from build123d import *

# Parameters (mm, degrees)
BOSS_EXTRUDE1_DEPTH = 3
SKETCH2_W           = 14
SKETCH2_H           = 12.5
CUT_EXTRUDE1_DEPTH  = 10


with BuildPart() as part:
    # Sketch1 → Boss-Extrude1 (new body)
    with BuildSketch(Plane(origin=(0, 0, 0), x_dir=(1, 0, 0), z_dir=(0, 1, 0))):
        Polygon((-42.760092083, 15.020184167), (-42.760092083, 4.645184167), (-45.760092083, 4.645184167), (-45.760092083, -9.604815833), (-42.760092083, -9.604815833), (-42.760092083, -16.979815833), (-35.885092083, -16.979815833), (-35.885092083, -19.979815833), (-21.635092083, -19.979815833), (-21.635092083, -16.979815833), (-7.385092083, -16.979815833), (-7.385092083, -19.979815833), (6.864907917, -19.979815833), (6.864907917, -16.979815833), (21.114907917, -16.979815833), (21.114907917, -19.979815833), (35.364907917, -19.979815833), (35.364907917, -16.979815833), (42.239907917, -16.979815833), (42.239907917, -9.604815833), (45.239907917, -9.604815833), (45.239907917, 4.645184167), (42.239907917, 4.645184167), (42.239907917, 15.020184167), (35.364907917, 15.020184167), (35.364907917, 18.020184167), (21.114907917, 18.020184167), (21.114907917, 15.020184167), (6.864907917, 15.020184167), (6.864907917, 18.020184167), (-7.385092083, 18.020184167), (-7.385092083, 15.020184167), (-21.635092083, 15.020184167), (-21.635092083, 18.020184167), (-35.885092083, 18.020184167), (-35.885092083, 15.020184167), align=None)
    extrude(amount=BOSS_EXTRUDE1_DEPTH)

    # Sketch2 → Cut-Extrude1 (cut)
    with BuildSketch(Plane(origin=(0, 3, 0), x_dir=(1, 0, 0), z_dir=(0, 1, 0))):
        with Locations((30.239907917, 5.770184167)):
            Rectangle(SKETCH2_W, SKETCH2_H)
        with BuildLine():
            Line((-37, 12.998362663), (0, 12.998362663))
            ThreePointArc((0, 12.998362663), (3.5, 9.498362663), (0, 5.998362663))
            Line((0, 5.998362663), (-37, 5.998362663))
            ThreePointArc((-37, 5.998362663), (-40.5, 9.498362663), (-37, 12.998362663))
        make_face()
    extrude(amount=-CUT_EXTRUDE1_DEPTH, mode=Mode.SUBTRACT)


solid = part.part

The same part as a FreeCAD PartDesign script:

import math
import FreeCAD as App
import Part
import Sketcher
Q = App.Units.Quantity

doc = App.newDocument("Part")
body = doc.addObject("PartDesign::Body", "Body")

# Sketch on XZ plane
sketch1 = body.newObject("Sketcher::SketchObject", "Sketch")
sketch1.AttachmentSupport = (doc.getObject("XZ_Plane"), [""])
sketch1.MapMode = "FlatFace"
sketch1.addGeometry(Part.LineSegment(App.Vector(-42.8, -15, 0), App.Vector(-42.8, -4.6, 0)), False)
sketch1.addGeometry(Part.LineSegment(App.Vector(-42.8, -4.6, 0), App.Vector(-45.8, -4.6, 0)), False)
sketch1.addGeometry(Part.LineSegment(App.Vector(-45.8, -4.6, 0), App.Vector(-45.8, 9.6, 0)), False)
sketch1.addGeometry(Part.LineSegment(App.Vector(-45.8, 9.6, 0), App.Vector(-42.8, 9.6, 0)), False)
sketch1.addGeometry(Part.LineSegment(App.Vector(-42.8, 9.6, 0), App.Vector(-42.8, 17, 0)), False)
sketch1.addGeometry(Part.LineSegment(App.Vector(-42.8, 17, 0), App.Vector(-35.9, 17, 0)), False)
sketch1.addGeometry(Part.LineSegment(App.Vector(-35.9, 17, 0), App.Vector(-35.9, 20, 0)), False)
sketch1.addGeometry(Part.LineSegment(App.Vector(-35.9, 20, 0), App.Vector(-21.6, 20, 0)), False)
sketch1.addGeometry(Part.LineSegment(App.Vector(-21.6, 20, 0), App.Vector(-21.6, 17, 0)), False)
sketch1.addGeometry(Part.LineSegment(App.Vector(-21.6, 17, 0), App.Vector(-7.4, 17, 0)), False)
sketch1.addGeometry(Part.LineSegment(App.Vector(-7.4, 17, 0), App.Vector(-7.4, 20, 0)), False)
sketch1.addGeometry(Part.LineSegment(App.Vector(-7.4, 20, 0), App.Vector(6.9, 20, 0)), False)
sketch1.addGeometry(Part.LineSegment(App.Vector(6.9, 20, 0), App.Vector(6.9, 17, 0)), False)
sketch1.addGeometry(Part.LineSegment(App.Vector(6.9, 17, 0), App.Vector(21.1, 17, 0)), False)
sketch1.addGeometry(Part.LineSegment(App.Vector(21.1, 17, 0), App.Vector(21.1, 20, 0)), False)
sketch1.addGeometry(Part.LineSegment(App.Vector(21.1, 20, 0), App.Vector(35.4, 20, 0)), False)
sketch1.addGeometry(Part.LineSegment(App.Vector(35.4, 20, 0), App.Vector(35.4, 17, 0)), False)
sketch1.addGeometry(Part.LineSegment(App.Vector(35.4, 17, 0), App.Vector(42.2, 17, 0)), False)
sketch1.addGeometry(Part.LineSegment(App.Vector(42.2, 17, 0), App.Vector(42.2, 9.6, 0)), False)
sketch1.addGeometry(Part.LineSegment(App.Vector(42.2, 9.6, 0), App.Vector(45.2, 9.6, 0)), False)
sketch1.addGeometry(Part.LineSegment(App.Vector(45.2, 9.6, 0), App.Vector(45.2, -4.6, 0)), False)
sketch1.addGeometry(Part.LineSegment(App.Vector(45.2, -4.6, 0), App.Vector(42.2, -4.6, 0)), False)
sketch1.addGeometry(Part.LineSegment(App.Vector(42.2, -4.6, 0), App.Vector(42.2, -15, 0)), False)
sketch1.addGeometry(Part.LineSegment(App.Vector(42.2, -15, 0), App.Vector(35.4, -15, 0)), False)
sketch1.addGeometry(Part.LineSegment(App.Vector(35.4, -15, 0), App.Vector(35.4, -18, 0)), False)
sketch1.addGeometry(Part.LineSegment(App.Vector(35.4, -18, 0), App.Vector(21.1, -18, 0)), False)
sketch1.addGeometry(Part.LineSegment(App.Vector(21.1, -18, 0), App.Vector(21.1, -15, 0)), False)
sketch1.addGeometry(Part.LineSegment(App.Vector(21.1, -15, 0), App.Vector(6.9, -15, 0)), False)
sketch1.addGeometry(Part.LineSegment(App.Vector(6.9, -15, 0), App.Vector(6.9, -18, 0)), False)
sketch1.addGeometry(Part.LineSegment(App.Vector(6.9, -18, 0), App.Vector(-7.4, -18, 0)), False)
sketch1.addGeometry(Part.LineSegment(App.Vector(-7.4, -18, 0), App.Vector(-7.4, -15, 0)), False)
sketch1.addGeometry(Part.LineSegment(App.Vector(-7.4, -15, 0), App.Vector(-21.6, -15, 0)), False)
sketch1.addGeometry(Part.LineSegment(App.Vector(-21.6, -15, 0), App.Vector(-21.6, -18, 0)), False)
sketch1.addGeometry(Part.LineSegment(App.Vector(-21.6, -18, 0), App.Vector(-35.9, -18, 0)), False)
sketch1.addGeometry(Part.LineSegment(App.Vector(-35.9, -18, 0), App.Vector(-35.9, -15, 0)), False)
sketch1.addGeometry(Part.LineSegment(App.Vector(-35.9, -15, 0), App.Vector(-42.8, -15, 0)), False)
sketch1.addConstraint(Sketcher.Constraint("Coincident", 0, 2, 1, 1))
sketch1.addConstraint(Sketcher.Constraint("Coincident", 1, 2, 2, 1))
sketch1.addConstraint(Sketcher.Constraint("Coincident", 2, 2, 3, 1))
sketch1.addConstraint(Sketcher.Constraint("Coincident", 3, 2, 4, 1))
sketch1.addConstraint(Sketcher.Constraint("Coincident", 4, 2, 5, 1))
sketch1.addConstraint(Sketcher.Constraint("Coincident", 5, 2, 6, 1))
sketch1.addConstraint(Sketcher.Constraint("Coincident", 6, 2, 7, 1))
sketch1.addConstraint(Sketcher.Constraint("Coincident", 7, 2, 8, 1))
sketch1.addConstraint(Sketcher.Constraint("Coincident", 8, 2, 9, 1))
sketch1.addConstraint(Sketcher.Constraint("Coincident", 9, 2, 10, 1))
sketch1.addConstraint(Sketcher.Constraint("Coincident", 10, 2, 11, 1))
sketch1.addConstraint(Sketcher.Constraint("Coincident", 11, 2, 12, 1))
sketch1.addConstraint(Sketcher.Constraint("Coincident", 12, 2, 13, 1))
sketch1.addConstraint(Sketcher.Constraint("Coincident", 13, 2, 14, 1))
sketch1.addConstraint(Sketcher.Constraint("Coincident", 14, 2, 15, 1))
sketch1.addConstraint(Sketcher.Constraint("Coincident", 15, 2, 16, 1))
sketch1.addConstraint(Sketcher.Constraint("Coincident", 16, 2, 17, 1))
sketch1.addConstraint(Sketcher.Constraint("Coincident", 17, 2, 18, 1))
sketch1.addConstraint(Sketcher.Constraint("Coincident", 18, 2, 19, 1))
sketch1.addConstraint(Sketcher.Constraint("Coincident", 19, 2, 20, 1))
sketch1.addConstraint(Sketcher.Constraint("Coincident", 20, 2, 21, 1))
sketch1.addConstraint(Sketcher.Constraint("Coincident", 21, 2, 22, 1))
sketch1.addConstraint(Sketcher.Constraint("Coincident", 22, 2, 23, 1))
sketch1.addConstraint(Sketcher.Constraint("Coincident", 23, 2, 24, 1))
sketch1.addConstraint(Sketcher.Constraint("Coincident", 24, 2, 25, 1))
sketch1.addConstraint(Sketcher.Constraint("Coincident", 25, 2, 26, 1))
sketch1.addConstraint(Sketcher.Constraint("Coincident", 26, 2, 27, 1))
sketch1.addConstraint(Sketcher.Constraint("Coincident", 27, 2, 28, 1))
sketch1.addConstraint(Sketcher.Constraint("Coincident", 28, 2, 29, 1))
sketch1.addConstraint(Sketcher.Constraint("Coincident", 29, 2, 30, 1))
sketch1.addConstraint(Sketcher.Constraint("Coincident", 30, 2, 31, 1))
sketch1.addConstraint(Sketcher.Constraint("Coincident", 31, 2, 32, 1))
sketch1.addConstraint(Sketcher.Constraint("Coincident", 32, 2, 33, 1))
sketch1.addConstraint(Sketcher.Constraint("Coincident", 33, 2, 34, 1))
sketch1.addConstraint(Sketcher.Constraint("Coincident", 34, 2, 35, 1))
sketch1.addConstraint(Sketcher.Constraint("Coincident", 35, 2, 0, 1))
sketch1.addConstraint(Sketcher.Constraint("Vertical", 0))
sketch1.addConstraint(Sketcher.Constraint("Horizontal", 1))
sketch1.addConstraint(Sketcher.Constraint("Vertical", 2))
sketch1.addConstraint(Sketcher.Constraint("Horizontal", 3))
sketch1.addConstraint(Sketcher.Constraint("Vertical", 4))
sketch1.addConstraint(Sketcher.Constraint("Horizontal", 5))
sketch1.addConstraint(Sketcher.Constraint("Vertical", 6))
sketch1.addConstraint(Sketcher.Constraint("Horizontal", 7))
sketch1.addConstraint(Sketcher.Constraint("Vertical", 8))
sketch1.addConstraint(Sketcher.Constraint("Horizontal", 9))
sketch1.addConstraint(Sketcher.Constraint("Vertical", 10))
sketch1.addConstraint(Sketcher.Constraint("Horizontal", 11))
sketch1.addConstraint(Sketcher.Constraint("Vertical", 12))
sketch1.addConstraint(Sketcher.Constraint("Horizontal", 13))
sketch1.addConstraint(Sketcher.Constraint("Vertical", 14))
sketch1.addConstraint(Sketcher.Constraint("Horizontal", 15))
sketch1.addConstraint(Sketcher.Constraint("Vertical", 16))
sketch1.addConstraint(Sketcher.Constraint("Horizontal", 17))
sketch1.addConstraint(Sketcher.Constraint("Vertical", 18))
sketch1.addConstraint(Sketcher.Constraint("Horizontal", 19))
sketch1.addConstraint(Sketcher.Constraint("Vertical", 20))
sketch1.addConstraint(Sketcher.Constraint("Horizontal", 21))
sketch1.addConstraint(Sketcher.Constraint("Vertical", 22))
sketch1.addConstraint(Sketcher.Constraint("Horizontal", 23))
sketch1.addConstraint(Sketcher.Constraint("Vertical", 24))
sketch1.addConstraint(Sketcher.Constraint("Horizontal", 25))
sketch1.addConstraint(Sketcher.Constraint("Vertical", 26))
sketch1.addConstraint(Sketcher.Constraint("Horizontal", 27))
sketch1.addConstraint(Sketcher.Constraint("Vertical", 28))
sketch1.addConstraint(Sketcher.Constraint("Horizontal", 29))
sketch1.addConstraint(Sketcher.Constraint("Vertical", 30))
sketch1.addConstraint(Sketcher.Constraint("Horizontal", 31))
sketch1.addConstraint(Sketcher.Constraint("Vertical", 32))
sketch1.addConstraint(Sketcher.Constraint("Horizontal", 33))
sketch1.addConstraint(Sketcher.Constraint("Vertical", 34))
sketch1.addConstraint(Sketcher.Constraint("Horizontal", 35))
sketch1.addConstraint(Sketcher.Constraint("Horizontal", 5, 2, 8, 2))
sketch1.addConstraint(Sketcher.Constraint("Horizontal", 7, 2, 10, 2))
sketch1.addConstraint(Sketcher.Constraint("Horizontal", 9, 2, 12, 2))
sketch1.addConstraint(Sketcher.Constraint("Horizontal", 11, 2, 14, 2))
sketch1.addConstraint(Sketcher.Constraint("Horizontal", 13, 2, 16, 2))
sketch1.addConstraint(Sketcher.Constraint("Horizontal", 3, 2, 18, 2))
sketch1.addConstraint(Sketcher.Constraint("Horizontal", 1, 2, 20, 2))
sketch1.addConstraint(Sketcher.Constraint("Horizontal", 23, 2, 26, 2))
sketch1.addConstraint(Sketcher.Constraint("Horizontal", 25, 2, 28, 2))
sketch1.addConstraint(Sketcher.Constraint("Horizontal", 27, 2, 30, 2))
sketch1.addConstraint(Sketcher.Constraint("Horizontal", 29, 2, 32, 2))
sketch1.addConstraint(Sketcher.Constraint("Horizontal", 31, 2, 34, 2))
sketch1.addConstraint(Sketcher.Constraint("Vertical", 0, 2, 3, 2))
sketch1.addConstraint(Sketcher.Constraint("Vertical", 18, 2, 21, 2))
sketch1.addConstraint(Sketcher.Constraint("Vertical", 16, 2, 23, 2))
sketch1.addConstraint(Sketcher.Constraint("Vertical", 14, 2, 25, 2))
sketch1.addConstraint(Sketcher.Constraint("Vertical", 12, 2, 27, 2))
sketch1.addConstraint(Sketcher.Constraint("Vertical", 10, 2, 29, 2))
sketch1.addConstraint(Sketcher.Constraint("Vertical", 8, 2, 31, 2))
sketch1.addConstraint(Sketcher.Constraint("Vertical", 6, 2, 33, 2))
sketch1.addConstraint(Sketcher.Constraint("Equal", 7, 9))
sketch1.addConstraint(Sketcher.Constraint("Equal", 9, 11))
sketch1.addConstraint(Sketcher.Constraint("Equal", 11, 13))
sketch1.addConstraint(Sketcher.Constraint("Equal", 13, 15))
sketch1.addConstraint(Sketcher.Constraint("Equal", 5, 17))
sketch1.addConstraint(Sketcher.Constraint("Equal", 3, 19))
sketch1.addConstraint(Sketcher.Constraint("Equal", 33, 2))
sketch1.addConstraint(Sketcher.Constraint("Equal", 21, 6))
sketch1.addConstraint(Sketcher.Constraint("Equal", 16, 24))
sketch1.addConstraint(Sketcher.Constraint("DistanceX", 1, 2, 1, 1, Q("3 mm")))
sketch1.addConstraint(Sketcher.Constraint("DistanceY", 22, 2, 17, 2, Q("32 mm")))
sketch1.addConstraint(Sketcher.Constraint("DistanceX", 7, 1, 7, 2, Q("14.25 mm")))
sketch1.addConstraint(Sketcher.Constraint("DistanceX", 5, 1, 5, 2, Q("6.875 mm")))
sketch1.addConstraint(Sketcher.Constraint("DistanceY", 0, 1, 0, 2, Q("10.375 mm")))
sketch1.addConstraint(Sketcher.Constraint("DistanceX", 0, 2, -1, 1, Q("42.760092 mm")))
sketch1.addConstraint(Sketcher.Constraint("DistanceY", 0, 2, -1, 1, Q("4.645184 mm")))
pad1 = body.newObject("PartDesign::Pad", "Pad")
pad1.Profile = sketch1
pad1.Length = 3
pad1.Reversed = True

# Sketch on XZ plane
sketch2 = body.newObject("Sketcher::SketchObject", "Sketch001")
sketch2.AttachmentSupport = (doc.getObject("XZ_Plane"), [""])
sketch2.MapMode = "FlatFace"
sketch2.AttachmentOffset = App.Placement(App.Vector(0, 0, -3), App.Rotation())
sketch2.addGeometry(Part.LineSegment(App.Vector(23.2, -12, 0), App.Vector(23.2, 0.5, 0)), False)
sketch2.addGeometry(Part.LineSegment(App.Vector(23.2, 0.5, 0), App.Vector(37.2, 0.5, 0)), False)
sketch2.addGeometry(Part.LineSegment(App.Vector(37.2, 0.5, 0), App.Vector(37.2, -12, 0)), False)
sketch2.addGeometry(Part.LineSegment(App.Vector(37.2, -12, 0), App.Vector(23.2, -12, 0)), False)
sketch2.addGeometry(Part.LineSegment(App.Vector(0, -13, 0), App.Vector(-37, -13, 0)), False)
sketch2.addGeometry(Part.ArcOfCircle(Part.Circle(App.Vector(-37, -9.5, 0), App.Vector(0, 0, 1), 3.5), math.radians(90), math.radians(270)), False)
sketch2.addGeometry(Part.LineSegment(App.Vector(-37, -6, 0), App.Vector(0, -6, 0)), False)
sketch2.addGeometry(Part.ArcOfCircle(Part.Circle(App.Vector(0, -9.5, 0), App.Vector(0, 0, 1), 3.5), math.radians(-90), math.radians(90)), False)
sketch2.addConstraint(Sketcher.Constraint("Coincident", 0, 2, 1, 1))
sketch2.addConstraint(Sketcher.Constraint("Coincident", 1, 2, 2, 1))
sketch2.addConstraint(Sketcher.Constraint("Coincident", 2, 2, 3, 1))
sketch2.addConstraint(Sketcher.Constraint("Coincident", 3, 2, 0, 1))
sketch2.addConstraint(Sketcher.Constraint("Tangent", 4, 2, 5, 2))
sketch2.addConstraint(Sketcher.Constraint("Tangent", 5, 1, 6, 1))
sketch2.addConstraint(Sketcher.Constraint("Tangent", 6, 2, 7, 2))
sketch2.addConstraint(Sketcher.Constraint("Tangent", 7, 1, 4, 1))
sketch2.addConstraint(Sketcher.Constraint("Vertical", 0))
sketch2.addConstraint(Sketcher.Constraint("Horizontal", 1))
sketch2.addConstraint(Sketcher.Constraint("Vertical", 2))
sketch2.addConstraint(Sketcher.Constraint("Horizontal", 3))
sketch2.addConstraint(Sketcher.Constraint("Horizontal", 4))
sketch2.addConstraint(Sketcher.Constraint("Horizontal", 6))
sketch2.addConstraint(Sketcher.Constraint("PointOnObject", 7, 3, -2))
sketch2.addConstraint(Sketcher.Constraint("Radius", 5, Q("3.5 mm")))
sketch2.addConstraint(Sketcher.Constraint("DistanceX", 1, 1, 1, 2, Q("14 mm")))
sketch2.addConstraint(Sketcher.Constraint("DistanceX", 4, 2, 4, 1, Q("37 mm")))
sketch2.addConstraint(Sketcher.Constraint("DistanceY", 0, 1, 0, 2, Q("12.5 mm")))
sketch2.addConstraint(Sketcher.Constraint("DistanceY", 7, 3, 0, 2, Q("9.978178 mm")))
sketch2.addConstraint(Sketcher.Constraint("DistanceY", 5, 3, -1, 1, Q("9.498363 mm")))
sketch2.addConstraint(Sketcher.Constraint("DistanceX", -1, 1, 0, 2, Q("23.239908 mm")))
pocket1 = body.newObject("PartDesign::Pocket", "Pocket")
pocket1.Profile = sketch2
pocket1.Length = 10
pocket1.Reversed = True

doc.recompute()
